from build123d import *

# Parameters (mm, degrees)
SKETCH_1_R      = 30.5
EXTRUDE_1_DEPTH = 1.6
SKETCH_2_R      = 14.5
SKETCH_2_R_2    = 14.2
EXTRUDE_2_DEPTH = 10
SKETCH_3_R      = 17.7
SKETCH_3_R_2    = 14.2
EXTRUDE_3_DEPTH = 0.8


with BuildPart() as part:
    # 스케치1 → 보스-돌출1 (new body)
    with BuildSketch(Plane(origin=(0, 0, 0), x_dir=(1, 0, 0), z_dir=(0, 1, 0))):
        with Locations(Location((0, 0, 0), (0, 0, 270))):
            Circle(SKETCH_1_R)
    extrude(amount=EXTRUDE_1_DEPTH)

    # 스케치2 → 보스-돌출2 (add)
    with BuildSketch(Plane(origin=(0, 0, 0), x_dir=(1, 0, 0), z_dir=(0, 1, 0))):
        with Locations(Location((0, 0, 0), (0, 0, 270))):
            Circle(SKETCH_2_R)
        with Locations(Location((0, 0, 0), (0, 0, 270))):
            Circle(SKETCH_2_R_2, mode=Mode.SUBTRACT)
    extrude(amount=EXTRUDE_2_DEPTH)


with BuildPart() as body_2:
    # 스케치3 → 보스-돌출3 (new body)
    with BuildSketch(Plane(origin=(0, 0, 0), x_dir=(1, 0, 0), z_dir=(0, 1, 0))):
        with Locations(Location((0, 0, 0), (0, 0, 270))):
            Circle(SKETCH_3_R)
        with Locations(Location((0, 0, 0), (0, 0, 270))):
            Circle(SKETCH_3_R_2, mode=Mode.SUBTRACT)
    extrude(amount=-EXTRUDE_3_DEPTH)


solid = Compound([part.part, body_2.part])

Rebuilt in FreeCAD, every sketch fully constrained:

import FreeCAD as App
import Part
import Sketcher
Q = App.Units.Quantity

doc = App.newDocument("Part")
body = doc.addObject("PartDesign::Body", "Body")

# Sketch on XZ plane
sketch1 = body.newObject("Sketcher::SketchObject", "Sketch")
sketch1.AttachmentSupport = (doc.getObject("XZ_Plane"), [""])
sketch1.MapMode = "FlatFace"
sketch1.addGeometry(Part.Circle(App.Vector(0, 0, 0), App.Vector(0, 0, 1), 30.5), False)
sketch1.addConstraint([
    Sketcher.Constraint("Coincident", 0, 3, -1, 1),
    Sketcher.Constraint("Diameter", 0, Q("61 mm")),
])
pad1 = body.newObject("PartDesign::Pad", "Pad")
pad1.Profile = sketch1
pad1.Length = 1.6
pad1.Reversed = True

# Sketch on XZ plane
sketch2 = body.newObject("Sketcher::SketchObject", "Sketch001")
sketch2.AttachmentSupport = (doc.getObject("XZ_Plane"), [""])
sketch2.MapMode = "FlatFace"
sketch2.addGeometry([
    Part.Circle(App.Vector(0, 0, 0), App.Vector(0, 0, 1), 14.5),
    Part.Circle(App.Vector(0, 0, 0), App.Vector(0, 0, 1), 14.2),
], False)
sketch2.addConstraint([
    Sketcher.Constraint("Coincident", 0, 3, -1, 1),
    Sketcher.Constraint("Coincident", 1, 3, -1, 1),
    Sketcher.Constraint("Diameter", 0, Q("29 mm")),
    Sketcher.Constraint("Diameter", 1, Q("28.4 mm")),
])
pad2 = body.newObject("PartDesign::Pad", "Pad001")
pad2.Profile = sketch2
pad2.Length = 10
pad2.Reversed = True
body2 = doc.addObject("PartDesign::Body", "Body001")

# Sketch on XZ plane
sketch3 = body2.newObject("Sketcher::SketchObject", "Sketch002")
sketch3.AttachmentSupport = (doc.getObject("XZ_Plane001"), [""])
sketch3.MapMode = "FlatFace"
sketch3.addGeometry([
    Part.Circle(App.Vector(0, 0, 0), App.Vector(0, 0, 1), 17.7),
    Part.Circle(App.Vector(0, 0, 0), App.Vector(0, 0, 1), 14.2),
], False)
sketch3.addConstraint([
    Sketcher.Constraint("Coincident", 0, 3, -1, 1),
    Sketcher.Constraint("Coincident", 1, 3, -1, 1),
    Sketcher.Constraint("Diameter", 0, Q("35.4 mm")),
    Sketcher.Constraint("Diameter", 1, Q("28.4 mm")),
])
pad3 = body2.newObject("PartDesign::Pad", "Pad002")
pad3.Profile = sketch3
pad3.Length = 0.8

doc.recompute()
